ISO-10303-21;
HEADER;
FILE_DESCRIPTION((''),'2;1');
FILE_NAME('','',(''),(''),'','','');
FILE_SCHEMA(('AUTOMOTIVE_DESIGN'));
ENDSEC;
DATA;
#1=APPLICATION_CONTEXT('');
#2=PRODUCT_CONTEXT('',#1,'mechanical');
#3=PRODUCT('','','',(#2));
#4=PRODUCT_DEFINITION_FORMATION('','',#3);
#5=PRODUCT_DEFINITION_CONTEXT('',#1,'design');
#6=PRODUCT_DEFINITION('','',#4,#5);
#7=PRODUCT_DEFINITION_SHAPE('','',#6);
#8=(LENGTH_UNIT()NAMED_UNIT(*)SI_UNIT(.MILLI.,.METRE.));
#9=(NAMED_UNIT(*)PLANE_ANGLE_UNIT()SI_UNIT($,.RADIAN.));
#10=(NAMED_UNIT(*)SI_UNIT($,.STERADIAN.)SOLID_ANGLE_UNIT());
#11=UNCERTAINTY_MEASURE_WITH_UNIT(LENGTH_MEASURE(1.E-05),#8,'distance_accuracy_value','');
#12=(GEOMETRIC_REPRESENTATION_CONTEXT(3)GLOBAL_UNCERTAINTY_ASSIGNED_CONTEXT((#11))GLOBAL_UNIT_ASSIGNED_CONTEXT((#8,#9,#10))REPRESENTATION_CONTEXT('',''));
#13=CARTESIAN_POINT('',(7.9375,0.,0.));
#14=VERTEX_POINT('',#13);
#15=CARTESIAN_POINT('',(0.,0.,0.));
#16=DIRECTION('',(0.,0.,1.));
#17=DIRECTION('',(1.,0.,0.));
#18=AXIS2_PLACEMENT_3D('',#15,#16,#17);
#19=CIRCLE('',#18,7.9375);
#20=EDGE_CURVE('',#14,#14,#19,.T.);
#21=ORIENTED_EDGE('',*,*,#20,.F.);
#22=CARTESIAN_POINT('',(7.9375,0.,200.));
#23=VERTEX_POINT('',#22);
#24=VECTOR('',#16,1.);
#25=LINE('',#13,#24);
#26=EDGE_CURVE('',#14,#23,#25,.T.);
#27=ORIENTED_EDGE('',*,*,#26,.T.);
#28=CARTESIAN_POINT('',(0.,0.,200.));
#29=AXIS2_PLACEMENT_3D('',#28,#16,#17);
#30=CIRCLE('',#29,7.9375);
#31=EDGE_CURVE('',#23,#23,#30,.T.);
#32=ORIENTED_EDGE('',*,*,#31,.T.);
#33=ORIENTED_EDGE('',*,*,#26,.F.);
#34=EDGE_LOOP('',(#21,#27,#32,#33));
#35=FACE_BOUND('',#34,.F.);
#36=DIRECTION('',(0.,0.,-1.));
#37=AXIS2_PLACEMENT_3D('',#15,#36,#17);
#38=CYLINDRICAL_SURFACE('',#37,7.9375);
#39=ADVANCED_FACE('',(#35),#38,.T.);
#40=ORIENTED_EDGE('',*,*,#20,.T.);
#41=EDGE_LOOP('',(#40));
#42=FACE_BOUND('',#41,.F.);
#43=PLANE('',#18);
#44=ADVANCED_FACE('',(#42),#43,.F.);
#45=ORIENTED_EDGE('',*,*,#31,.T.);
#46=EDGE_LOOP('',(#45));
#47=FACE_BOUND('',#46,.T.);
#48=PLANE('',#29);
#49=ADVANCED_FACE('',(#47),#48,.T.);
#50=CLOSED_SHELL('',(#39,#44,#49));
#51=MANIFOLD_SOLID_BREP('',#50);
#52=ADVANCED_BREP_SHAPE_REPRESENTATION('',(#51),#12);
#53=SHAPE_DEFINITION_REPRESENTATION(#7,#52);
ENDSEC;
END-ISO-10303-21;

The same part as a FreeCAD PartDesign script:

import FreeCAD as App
import Part
import Sketcher
from FreeCAD import Vector
Q = App.Units.Quantity

doc = App.newDocument("Part")
params = doc.addObject("Spreadsheet::Sheet", "Params")
for row, (alias, value) in enumerate([
    ("pad1_length", "200 mm"),
], start=1):
    params.set(f"A{row}", alias)
    params.set(f"B{row}", "=" + value)
    params.setAlias(f"B{row}", alias)

body = doc.addObject("PartDesign::Body", "Body")

sketch1 = body.newObject("Sketcher::SketchObject", "Sketch")
sketch1.AttachmentSupport = (doc.getObject("XY_Plane"), [""])
sketch1.MapMode = "FlatFace"
sketch1.addGeometry(Part.Circle(Vector(0, 0, 0), Vector(0, 0, 1), 8), False)
sketch1.addConstraint([
    Sketcher.Constraint("Coincident", 0, 3, -1, 1),
    Sketcher.Constraint("Diameter", 0, Q("15.875 mm")),
])
pad1 = body.newObject("PartDesign::Pad", "Pad")
pad1.Profile = sketch1
pad1.setExpression("Length", "Params.pad1_length")

doc.recompute()
